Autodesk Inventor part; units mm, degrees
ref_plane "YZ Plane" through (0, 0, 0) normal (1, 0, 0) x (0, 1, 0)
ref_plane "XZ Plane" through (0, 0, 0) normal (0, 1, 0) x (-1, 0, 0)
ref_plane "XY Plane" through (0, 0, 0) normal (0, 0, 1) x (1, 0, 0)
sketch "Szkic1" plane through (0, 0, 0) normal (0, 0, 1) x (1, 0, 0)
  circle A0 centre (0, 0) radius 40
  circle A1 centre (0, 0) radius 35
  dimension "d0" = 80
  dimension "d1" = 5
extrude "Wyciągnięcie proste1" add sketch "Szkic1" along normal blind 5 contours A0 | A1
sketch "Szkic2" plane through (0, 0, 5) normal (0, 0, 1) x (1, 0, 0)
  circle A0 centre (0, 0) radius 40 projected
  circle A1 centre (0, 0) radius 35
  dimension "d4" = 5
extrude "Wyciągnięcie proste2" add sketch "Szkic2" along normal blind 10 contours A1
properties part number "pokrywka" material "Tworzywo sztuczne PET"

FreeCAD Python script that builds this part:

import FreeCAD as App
import Part
import Sketcher
from FreeCAD import Vector

doc = App.newDocument("Part")
body = doc.addObject("PartDesign::Body", "Body")

sketch1 = body.newObject("Sketcher::SketchObject", "Sketch")
sketch1.AttachmentSupport = (doc.getObject("XY_Plane"), [""])
sketch1.MapMode = "FlatFace"
sketch1.addGeometry(Part.Circle(Vector(0, 0, 0), Vector(0, 0, 1), 40), False)
sketch1.addConstraint([
    Sketcher.Constraint("Coincident", 0, 3, -1, 1),
    Sketcher.Constraint("Diameter", 0, 80.0),
])
pad1 = body.newObject("PartDesign::Pad", "Pad")
pad1.Profile = sketch1
pad1.Length = 5

sketch2 = body.newObject("Sketcher::SketchObject", "Sketch001")
sketch2.AttachmentSupport = (doc.getObject("XY_Plane"), [""])
sketch2.MapMode = "FlatFace"
sketch2.AttachmentOffset = App.Placement(Vector(0, 0, 5), App.Rotation())
sketch2.addGeometry(Part.Circle(Vector(0, 0, 0), Vector(0, 0, 1), 35), False)
sketch2.addConstraint([
    Sketcher.Constraint("Coincident", 0, 3, -1, 1),
    Sketcher.Constraint("Diameter", 0, 70.0),
])
pad2 = body.newObject("PartDesign::Pad", "Pad001")
pad2.Profile = sketch2
pad2.Length = 10

doc.recompute()
